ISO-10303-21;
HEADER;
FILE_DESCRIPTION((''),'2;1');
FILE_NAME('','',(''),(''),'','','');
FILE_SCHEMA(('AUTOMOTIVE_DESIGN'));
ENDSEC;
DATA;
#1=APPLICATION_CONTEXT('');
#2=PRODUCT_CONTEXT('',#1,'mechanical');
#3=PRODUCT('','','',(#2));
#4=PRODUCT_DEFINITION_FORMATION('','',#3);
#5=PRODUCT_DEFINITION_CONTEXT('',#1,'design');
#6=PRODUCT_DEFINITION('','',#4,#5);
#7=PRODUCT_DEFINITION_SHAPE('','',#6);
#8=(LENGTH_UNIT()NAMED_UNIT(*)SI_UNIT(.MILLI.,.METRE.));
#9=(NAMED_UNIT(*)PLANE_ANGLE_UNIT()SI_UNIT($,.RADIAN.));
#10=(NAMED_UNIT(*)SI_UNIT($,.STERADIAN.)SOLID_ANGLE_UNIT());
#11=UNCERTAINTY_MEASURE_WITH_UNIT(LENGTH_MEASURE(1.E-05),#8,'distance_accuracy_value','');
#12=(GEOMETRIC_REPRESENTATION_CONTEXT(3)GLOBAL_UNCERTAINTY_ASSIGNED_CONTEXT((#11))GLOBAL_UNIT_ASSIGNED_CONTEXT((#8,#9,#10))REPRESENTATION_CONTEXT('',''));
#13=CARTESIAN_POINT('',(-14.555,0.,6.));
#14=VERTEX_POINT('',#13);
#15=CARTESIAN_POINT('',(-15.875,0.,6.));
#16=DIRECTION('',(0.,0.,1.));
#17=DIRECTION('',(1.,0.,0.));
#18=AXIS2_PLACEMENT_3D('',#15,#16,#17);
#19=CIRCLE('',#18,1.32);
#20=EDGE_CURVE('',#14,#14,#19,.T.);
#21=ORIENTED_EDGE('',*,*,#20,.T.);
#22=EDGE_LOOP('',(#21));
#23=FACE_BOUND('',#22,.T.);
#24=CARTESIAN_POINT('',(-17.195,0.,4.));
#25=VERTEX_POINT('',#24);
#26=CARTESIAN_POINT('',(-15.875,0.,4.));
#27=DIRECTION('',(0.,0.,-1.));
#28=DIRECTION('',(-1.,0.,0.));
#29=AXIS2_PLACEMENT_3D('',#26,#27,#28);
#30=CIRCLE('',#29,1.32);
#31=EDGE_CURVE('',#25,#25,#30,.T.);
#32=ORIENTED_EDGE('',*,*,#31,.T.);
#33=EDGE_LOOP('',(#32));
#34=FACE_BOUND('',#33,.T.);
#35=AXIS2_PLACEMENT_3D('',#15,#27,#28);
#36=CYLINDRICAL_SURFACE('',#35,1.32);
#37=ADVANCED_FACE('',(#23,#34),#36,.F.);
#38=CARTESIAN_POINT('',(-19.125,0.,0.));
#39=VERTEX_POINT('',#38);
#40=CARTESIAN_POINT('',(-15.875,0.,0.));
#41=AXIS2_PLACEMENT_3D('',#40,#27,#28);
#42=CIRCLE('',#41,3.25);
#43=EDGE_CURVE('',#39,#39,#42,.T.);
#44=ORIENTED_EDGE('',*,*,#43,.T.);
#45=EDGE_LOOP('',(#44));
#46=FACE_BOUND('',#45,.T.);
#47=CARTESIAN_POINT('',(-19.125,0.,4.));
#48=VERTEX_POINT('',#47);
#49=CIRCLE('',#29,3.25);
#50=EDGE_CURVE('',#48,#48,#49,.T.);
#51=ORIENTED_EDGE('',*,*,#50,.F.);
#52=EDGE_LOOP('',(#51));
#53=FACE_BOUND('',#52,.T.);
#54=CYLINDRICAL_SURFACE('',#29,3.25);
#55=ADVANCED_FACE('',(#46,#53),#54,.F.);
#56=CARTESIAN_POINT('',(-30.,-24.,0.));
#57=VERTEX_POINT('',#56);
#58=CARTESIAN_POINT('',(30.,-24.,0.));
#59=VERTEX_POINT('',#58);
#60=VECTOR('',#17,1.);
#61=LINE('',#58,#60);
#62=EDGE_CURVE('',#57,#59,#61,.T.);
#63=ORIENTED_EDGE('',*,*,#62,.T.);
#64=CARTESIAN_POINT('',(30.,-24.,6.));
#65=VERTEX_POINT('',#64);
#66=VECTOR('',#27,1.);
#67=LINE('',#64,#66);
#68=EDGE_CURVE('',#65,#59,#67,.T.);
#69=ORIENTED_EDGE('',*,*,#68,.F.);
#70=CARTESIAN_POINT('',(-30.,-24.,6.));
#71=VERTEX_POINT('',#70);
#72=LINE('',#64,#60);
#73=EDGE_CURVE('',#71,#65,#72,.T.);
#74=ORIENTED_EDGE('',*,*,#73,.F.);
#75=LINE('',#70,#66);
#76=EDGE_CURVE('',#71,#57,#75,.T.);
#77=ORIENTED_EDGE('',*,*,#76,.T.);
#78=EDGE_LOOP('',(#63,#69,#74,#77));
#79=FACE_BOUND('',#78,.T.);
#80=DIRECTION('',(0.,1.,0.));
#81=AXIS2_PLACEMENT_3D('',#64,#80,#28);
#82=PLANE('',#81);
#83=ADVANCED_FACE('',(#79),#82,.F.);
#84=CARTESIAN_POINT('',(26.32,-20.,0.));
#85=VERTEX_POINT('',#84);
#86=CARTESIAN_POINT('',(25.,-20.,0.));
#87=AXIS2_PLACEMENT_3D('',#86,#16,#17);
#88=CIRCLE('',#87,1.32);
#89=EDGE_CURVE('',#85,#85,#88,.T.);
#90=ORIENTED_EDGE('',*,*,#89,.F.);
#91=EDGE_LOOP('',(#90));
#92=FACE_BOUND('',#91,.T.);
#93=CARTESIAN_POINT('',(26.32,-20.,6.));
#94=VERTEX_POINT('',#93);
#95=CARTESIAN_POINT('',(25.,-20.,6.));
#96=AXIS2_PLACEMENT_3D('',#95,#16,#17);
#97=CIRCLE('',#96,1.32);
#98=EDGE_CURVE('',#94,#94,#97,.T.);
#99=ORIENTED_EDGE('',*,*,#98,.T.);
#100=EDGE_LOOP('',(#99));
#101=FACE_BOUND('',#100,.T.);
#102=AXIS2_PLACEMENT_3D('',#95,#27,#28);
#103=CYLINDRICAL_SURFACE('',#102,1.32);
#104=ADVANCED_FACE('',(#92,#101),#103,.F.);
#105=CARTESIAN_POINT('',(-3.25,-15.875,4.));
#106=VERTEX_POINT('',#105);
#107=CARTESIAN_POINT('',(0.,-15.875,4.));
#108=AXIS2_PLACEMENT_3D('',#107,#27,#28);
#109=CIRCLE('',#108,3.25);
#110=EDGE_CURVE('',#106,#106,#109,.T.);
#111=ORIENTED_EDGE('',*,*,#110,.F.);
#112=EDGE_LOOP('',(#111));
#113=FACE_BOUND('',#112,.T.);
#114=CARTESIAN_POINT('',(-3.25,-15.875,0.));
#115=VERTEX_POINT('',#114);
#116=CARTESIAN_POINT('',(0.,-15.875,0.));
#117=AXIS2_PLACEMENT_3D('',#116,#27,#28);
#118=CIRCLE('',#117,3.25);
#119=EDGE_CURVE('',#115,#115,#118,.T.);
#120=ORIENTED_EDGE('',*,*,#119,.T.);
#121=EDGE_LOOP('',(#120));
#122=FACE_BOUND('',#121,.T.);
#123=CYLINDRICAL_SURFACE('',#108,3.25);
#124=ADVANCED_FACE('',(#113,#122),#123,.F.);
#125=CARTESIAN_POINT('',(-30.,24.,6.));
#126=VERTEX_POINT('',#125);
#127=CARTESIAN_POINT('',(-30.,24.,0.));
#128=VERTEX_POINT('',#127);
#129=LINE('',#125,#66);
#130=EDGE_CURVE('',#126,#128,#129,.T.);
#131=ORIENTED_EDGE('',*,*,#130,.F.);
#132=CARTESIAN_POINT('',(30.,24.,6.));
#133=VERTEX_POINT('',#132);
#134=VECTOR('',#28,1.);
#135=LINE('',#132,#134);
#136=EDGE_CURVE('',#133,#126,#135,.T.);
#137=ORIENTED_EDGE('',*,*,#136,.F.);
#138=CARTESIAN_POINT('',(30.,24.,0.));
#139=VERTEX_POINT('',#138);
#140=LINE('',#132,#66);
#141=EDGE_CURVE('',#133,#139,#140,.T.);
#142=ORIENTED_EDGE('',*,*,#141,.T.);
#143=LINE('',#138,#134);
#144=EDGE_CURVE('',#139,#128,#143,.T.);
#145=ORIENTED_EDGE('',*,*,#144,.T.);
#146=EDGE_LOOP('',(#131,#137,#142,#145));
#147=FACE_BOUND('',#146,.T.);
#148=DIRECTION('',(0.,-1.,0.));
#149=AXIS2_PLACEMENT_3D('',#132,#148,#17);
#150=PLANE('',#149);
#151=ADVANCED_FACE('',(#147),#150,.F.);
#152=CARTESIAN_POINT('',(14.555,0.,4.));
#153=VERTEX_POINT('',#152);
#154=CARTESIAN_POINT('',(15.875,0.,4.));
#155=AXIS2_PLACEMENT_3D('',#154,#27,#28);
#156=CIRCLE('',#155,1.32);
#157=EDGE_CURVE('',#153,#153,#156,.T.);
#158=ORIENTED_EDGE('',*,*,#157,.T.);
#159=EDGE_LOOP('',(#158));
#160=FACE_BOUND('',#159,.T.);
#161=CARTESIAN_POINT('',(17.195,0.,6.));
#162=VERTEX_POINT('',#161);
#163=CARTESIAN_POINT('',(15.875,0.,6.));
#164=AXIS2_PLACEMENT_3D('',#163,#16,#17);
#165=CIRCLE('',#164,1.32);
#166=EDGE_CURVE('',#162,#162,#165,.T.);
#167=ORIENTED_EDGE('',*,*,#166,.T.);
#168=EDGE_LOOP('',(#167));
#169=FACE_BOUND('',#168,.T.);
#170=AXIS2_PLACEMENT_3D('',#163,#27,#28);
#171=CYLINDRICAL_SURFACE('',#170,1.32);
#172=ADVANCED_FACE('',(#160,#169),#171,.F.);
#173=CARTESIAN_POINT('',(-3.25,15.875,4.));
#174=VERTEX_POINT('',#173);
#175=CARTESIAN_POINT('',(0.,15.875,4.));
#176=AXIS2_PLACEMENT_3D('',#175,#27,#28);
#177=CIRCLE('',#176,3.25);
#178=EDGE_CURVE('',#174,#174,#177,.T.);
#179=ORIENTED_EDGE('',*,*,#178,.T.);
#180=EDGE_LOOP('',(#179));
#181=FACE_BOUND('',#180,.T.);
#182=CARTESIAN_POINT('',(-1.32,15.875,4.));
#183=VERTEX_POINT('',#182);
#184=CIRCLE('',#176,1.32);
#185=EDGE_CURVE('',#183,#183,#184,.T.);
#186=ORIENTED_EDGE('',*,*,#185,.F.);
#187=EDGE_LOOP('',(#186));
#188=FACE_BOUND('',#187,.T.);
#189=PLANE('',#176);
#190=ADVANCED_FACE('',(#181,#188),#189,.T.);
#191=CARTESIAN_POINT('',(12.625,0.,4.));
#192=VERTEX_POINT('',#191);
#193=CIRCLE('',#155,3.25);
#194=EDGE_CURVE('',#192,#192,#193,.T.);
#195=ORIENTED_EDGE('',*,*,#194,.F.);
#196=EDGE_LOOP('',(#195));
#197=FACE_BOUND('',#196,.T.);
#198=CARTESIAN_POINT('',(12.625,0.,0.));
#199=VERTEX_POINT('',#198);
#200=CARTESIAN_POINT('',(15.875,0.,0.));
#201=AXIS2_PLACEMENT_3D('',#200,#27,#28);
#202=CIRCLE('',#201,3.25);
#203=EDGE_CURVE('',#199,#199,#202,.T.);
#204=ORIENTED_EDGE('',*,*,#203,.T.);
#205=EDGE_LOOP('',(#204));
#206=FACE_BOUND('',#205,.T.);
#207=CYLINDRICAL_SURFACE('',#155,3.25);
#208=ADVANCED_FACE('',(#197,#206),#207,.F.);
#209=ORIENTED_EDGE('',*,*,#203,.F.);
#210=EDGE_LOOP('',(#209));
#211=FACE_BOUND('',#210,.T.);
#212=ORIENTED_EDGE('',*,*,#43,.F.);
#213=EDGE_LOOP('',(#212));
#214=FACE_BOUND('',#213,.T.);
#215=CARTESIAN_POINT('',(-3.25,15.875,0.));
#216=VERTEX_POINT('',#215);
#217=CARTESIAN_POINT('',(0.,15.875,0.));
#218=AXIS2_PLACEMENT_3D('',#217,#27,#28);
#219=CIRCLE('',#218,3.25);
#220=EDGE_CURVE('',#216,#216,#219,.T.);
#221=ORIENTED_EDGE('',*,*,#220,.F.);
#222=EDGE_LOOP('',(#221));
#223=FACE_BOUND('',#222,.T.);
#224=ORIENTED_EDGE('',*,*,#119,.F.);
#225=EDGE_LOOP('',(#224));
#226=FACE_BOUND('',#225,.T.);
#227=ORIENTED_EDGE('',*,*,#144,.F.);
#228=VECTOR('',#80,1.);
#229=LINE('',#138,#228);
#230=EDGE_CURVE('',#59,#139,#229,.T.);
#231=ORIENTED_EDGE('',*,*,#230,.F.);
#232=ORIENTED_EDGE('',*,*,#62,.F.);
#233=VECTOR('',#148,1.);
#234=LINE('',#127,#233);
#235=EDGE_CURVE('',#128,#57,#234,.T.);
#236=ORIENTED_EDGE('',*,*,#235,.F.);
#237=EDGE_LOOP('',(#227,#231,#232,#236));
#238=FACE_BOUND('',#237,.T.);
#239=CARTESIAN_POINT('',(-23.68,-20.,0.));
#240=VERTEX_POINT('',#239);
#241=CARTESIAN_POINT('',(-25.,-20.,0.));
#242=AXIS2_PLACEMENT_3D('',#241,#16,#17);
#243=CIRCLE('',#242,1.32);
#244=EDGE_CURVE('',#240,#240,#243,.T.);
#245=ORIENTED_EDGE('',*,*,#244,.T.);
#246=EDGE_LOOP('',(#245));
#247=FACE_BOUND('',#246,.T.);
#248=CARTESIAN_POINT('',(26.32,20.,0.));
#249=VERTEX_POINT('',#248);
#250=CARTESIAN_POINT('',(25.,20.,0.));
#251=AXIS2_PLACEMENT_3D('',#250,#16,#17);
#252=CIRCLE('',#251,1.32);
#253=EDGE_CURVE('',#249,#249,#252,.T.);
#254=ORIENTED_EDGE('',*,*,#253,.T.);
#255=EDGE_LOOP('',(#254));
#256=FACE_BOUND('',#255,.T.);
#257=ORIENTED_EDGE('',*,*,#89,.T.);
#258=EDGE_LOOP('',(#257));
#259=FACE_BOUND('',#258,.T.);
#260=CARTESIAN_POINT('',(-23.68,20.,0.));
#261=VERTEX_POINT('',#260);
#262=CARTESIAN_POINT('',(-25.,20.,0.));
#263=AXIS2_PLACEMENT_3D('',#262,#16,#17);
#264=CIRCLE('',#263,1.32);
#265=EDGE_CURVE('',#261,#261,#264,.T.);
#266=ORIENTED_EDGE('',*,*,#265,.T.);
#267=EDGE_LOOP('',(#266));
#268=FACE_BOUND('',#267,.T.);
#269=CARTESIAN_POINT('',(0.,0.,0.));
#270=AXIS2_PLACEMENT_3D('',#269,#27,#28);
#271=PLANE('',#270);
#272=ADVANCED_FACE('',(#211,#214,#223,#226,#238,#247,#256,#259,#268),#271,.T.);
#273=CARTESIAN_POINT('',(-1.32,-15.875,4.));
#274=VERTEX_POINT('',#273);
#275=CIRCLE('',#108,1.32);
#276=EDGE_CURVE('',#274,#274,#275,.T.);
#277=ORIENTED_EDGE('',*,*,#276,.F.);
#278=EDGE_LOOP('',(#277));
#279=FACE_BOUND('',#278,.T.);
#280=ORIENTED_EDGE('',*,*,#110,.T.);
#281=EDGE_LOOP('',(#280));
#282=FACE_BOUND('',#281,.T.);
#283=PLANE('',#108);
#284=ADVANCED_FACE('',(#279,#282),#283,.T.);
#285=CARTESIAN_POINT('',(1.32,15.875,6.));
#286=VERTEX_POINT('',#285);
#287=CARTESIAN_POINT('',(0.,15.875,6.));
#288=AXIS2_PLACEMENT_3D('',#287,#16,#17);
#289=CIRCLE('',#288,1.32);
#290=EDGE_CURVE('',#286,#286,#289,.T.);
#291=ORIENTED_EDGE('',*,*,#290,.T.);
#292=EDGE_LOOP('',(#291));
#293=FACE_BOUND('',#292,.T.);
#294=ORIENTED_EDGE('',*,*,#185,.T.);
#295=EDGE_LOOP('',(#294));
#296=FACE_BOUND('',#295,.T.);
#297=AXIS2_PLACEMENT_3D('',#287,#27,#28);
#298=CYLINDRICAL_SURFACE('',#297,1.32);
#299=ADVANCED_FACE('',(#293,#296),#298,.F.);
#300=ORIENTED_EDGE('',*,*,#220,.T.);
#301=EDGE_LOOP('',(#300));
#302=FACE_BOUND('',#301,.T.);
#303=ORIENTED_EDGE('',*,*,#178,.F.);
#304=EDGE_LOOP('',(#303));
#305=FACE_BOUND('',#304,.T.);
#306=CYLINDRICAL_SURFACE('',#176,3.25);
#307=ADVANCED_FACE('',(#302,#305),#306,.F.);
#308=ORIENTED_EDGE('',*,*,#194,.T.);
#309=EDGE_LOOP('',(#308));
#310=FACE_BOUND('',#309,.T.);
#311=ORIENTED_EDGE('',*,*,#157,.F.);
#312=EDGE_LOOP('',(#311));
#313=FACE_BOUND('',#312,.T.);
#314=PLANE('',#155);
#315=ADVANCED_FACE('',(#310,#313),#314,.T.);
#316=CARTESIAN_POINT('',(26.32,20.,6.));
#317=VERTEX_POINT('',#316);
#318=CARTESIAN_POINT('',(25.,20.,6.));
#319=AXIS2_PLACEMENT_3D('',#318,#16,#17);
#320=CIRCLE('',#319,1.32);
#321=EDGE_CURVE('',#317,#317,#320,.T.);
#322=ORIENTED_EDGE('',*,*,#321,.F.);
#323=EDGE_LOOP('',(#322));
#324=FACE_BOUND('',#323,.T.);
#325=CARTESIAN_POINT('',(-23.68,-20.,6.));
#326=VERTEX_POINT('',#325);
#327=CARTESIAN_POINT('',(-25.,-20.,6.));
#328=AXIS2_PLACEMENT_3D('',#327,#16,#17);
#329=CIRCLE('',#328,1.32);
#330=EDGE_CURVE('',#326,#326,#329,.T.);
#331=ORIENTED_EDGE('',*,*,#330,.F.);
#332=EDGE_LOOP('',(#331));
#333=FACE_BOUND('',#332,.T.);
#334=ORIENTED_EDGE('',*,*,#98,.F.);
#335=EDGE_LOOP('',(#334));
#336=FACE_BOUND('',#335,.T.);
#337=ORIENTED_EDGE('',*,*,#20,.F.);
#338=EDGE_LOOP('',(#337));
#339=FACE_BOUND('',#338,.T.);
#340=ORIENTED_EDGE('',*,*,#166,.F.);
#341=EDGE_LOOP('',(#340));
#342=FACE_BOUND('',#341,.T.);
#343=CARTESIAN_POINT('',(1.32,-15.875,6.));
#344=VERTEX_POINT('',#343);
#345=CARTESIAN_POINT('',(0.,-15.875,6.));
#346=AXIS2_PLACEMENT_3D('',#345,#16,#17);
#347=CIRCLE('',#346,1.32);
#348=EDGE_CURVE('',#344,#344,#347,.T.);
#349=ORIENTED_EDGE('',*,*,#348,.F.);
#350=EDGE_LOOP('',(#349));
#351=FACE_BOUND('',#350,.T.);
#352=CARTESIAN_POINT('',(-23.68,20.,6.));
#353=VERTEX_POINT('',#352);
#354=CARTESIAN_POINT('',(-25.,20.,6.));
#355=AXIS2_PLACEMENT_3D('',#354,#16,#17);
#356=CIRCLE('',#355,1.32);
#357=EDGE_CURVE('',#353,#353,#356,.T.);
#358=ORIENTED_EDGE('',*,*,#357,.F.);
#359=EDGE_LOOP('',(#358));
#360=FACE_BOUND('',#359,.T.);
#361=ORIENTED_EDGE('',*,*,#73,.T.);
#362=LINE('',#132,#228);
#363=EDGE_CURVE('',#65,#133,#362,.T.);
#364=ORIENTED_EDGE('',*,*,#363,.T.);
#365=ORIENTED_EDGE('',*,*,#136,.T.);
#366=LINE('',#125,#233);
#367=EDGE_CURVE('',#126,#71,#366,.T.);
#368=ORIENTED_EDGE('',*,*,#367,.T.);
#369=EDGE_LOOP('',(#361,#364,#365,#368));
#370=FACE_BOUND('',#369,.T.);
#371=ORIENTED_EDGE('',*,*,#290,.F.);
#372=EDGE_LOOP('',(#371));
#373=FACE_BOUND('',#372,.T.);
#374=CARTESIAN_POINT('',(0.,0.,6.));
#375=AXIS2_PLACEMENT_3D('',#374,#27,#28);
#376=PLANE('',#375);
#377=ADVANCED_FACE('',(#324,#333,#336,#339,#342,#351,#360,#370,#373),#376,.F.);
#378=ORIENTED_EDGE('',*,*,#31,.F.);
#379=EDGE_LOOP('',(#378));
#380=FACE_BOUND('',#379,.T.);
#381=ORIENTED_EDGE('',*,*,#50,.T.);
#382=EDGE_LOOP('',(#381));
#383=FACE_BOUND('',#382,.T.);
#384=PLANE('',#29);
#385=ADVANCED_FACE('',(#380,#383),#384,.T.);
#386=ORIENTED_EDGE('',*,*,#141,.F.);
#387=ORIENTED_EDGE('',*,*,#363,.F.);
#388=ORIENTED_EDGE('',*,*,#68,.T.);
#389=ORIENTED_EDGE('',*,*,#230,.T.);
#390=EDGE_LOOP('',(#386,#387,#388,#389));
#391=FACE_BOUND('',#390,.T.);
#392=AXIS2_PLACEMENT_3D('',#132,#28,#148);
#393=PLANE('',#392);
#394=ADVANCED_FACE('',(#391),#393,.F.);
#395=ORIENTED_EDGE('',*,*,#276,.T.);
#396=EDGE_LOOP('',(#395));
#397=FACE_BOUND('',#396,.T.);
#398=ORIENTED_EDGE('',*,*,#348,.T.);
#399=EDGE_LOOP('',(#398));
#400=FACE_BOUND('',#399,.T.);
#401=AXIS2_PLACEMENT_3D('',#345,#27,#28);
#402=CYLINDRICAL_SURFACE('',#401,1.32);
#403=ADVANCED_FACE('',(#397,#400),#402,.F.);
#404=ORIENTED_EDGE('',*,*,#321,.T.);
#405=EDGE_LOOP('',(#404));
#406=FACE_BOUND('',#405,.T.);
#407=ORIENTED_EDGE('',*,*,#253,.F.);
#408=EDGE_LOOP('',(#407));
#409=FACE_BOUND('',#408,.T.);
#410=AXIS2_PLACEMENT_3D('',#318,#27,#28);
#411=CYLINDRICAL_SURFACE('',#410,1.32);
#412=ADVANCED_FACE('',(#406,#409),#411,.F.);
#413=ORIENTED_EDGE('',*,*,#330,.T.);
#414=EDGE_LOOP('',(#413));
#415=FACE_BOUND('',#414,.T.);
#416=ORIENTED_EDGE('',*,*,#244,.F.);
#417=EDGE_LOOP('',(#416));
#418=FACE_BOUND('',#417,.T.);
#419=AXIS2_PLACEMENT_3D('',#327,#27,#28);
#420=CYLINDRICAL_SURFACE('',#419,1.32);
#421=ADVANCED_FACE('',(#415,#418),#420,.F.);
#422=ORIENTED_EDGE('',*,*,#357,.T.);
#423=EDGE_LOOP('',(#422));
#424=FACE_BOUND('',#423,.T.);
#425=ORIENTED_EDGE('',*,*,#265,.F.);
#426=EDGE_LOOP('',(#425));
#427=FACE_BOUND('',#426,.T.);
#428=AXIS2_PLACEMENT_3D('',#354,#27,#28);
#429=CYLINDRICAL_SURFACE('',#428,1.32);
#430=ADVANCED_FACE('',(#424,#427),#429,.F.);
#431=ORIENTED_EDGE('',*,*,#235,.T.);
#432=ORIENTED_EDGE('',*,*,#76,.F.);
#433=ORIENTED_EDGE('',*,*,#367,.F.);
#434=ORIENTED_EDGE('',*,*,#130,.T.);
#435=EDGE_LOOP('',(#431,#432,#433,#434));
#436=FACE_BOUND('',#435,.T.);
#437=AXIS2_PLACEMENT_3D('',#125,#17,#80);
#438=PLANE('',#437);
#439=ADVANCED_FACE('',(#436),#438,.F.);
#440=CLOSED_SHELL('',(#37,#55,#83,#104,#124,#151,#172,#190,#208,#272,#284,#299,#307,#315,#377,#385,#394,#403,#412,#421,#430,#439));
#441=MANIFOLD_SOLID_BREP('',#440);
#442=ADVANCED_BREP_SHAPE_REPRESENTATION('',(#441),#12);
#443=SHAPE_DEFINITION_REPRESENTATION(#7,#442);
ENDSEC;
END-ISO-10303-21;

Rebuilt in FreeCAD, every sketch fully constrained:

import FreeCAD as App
import Part
import Sketcher
from FreeCAD import Vector
Q = App.Units.Quantity

doc = App.newDocument("Part")
params = doc.addObject("Spreadsheet::Sheet", "Params")
for row, (alias, value) in enumerate([
    ("sketch1_diameter", "2.64 mm"),
    ("sketch1_width", "60 mm"),
    ("sketch1_height", "48 mm"),
    ("pad1_length", "6 mm"),
    ("sketch2_diameter", "6.5 mm"),
    ("pocket1_length", "4 mm"),
], start=1):
    params.set(f"A{row}", alias)
    params.set(f"B{row}", "=" + value)
    params.setAlias(f"B{row}", alias)

body = doc.addObject("PartDesign::Body", "Body")

# Sketch on XY plane
sketch1 = body.newObject("Sketcher::SketchObject", "Sketch")
sketch1.AttachmentSupport = (doc.getObject("XY_Plane"), [""])
sketch1.MapMode = "FlatFace"
sketch1.addGeometry(Part.LineSegment(Vector(-30, 24, 0), Vector(-30, -24, 0)), False)
sketch1.addGeometry(Part.LineSegment(Vector(-30, -24, 0), Vector(30, -24, 0)), False)
sketch1.addGeometry(Part.LineSegment(Vector(30, -24, 0), Vector(30, 24, 0)), False)
sketch1.addGeometry(Part.LineSegment(Vector(30, 24, 0), Vector(-30, 24, 0)), False)
sketch1.addGeometry(Part.Circle(Vector(-25, -20, 0), Vector(0, 0, 1), 1.3), False)
sketch1.addGeometry(Part.Circle(Vector(0, -15.9, 0), Vector(0, 0, 1), 1.3), False)
sketch1.addGeometry(Part.Circle(Vector(25, -20, 0), Vector(0, 0, 1), 1.3), False)
sketch1.addGeometry(Part.Circle(Vector(-15.9, 0, 0), Vector(0, 0, 1), 1.3), False)
sketch1.addGeometry(Part.Circle(Vector(-25, 20, 0), Vector(0, 0, 1), 1.3), False)
sketch1.addGeometry(Part.Circle(Vector(15.9, 0, 0), Vector(0, 0, 1), 1.3), False)
sketch1.addGeometry(Part.Circle(Vector(0, 15.9, 0), Vector(0, 0, 1), 1.3), False)
sketch1.addGeometry(Part.Circle(Vector(25, 20, 0), Vector(0, 0, 1), 1.3), False)
sketch1.addConstraint(Sketcher.Constraint("Coincident", 0, 2, 1, 1))
sketch1.addConstraint(Sketcher.Constraint("Coincident", 1, 2, 2, 1))
sketch1.addConstraint(Sketcher.Constraint("Coincident", 2, 2, 3, 1))
sketch1.addConstraint(Sketcher.Constraint("Coincident", 3, 2, 0, 1))
sketch1.addConstraint(Sketcher.Constraint("Vertical", 0))
sketch1.addConstraint(Sketcher.Constraint("Horizontal", 1))
sketch1.addConstraint(Sketcher.Constraint("Vertical", 2))
sketch1.addConstraint(Sketcher.Constraint("Horizontal", 3))
sketch1.addConstraint(Sketcher.Constraint("Equal", 4, 5))
sketch1.addConstraint(Sketcher.Constraint("Equal", 5, 6))
sketch1.addConstraint(Sketcher.Constraint("Equal", 6, 7))
sketch1.addConstraint(Sketcher.Constraint("Equal", 7, 8))
sketch1.addConstraint(Sketcher.Constraint("Equal", 8, 9))
sketch1.addConstraint(Sketcher.Constraint("Equal", 9, 10))
sketch1.addConstraint(Sketcher.Constraint("Equal", 10, 11))
sketch1.addConstraint(Sketcher.Constraint("Symmetric", 6, 3, 8, 3, -1, 1))
sketch1.addConstraint(Sketcher.Constraint("Symmetric", 7, 3, 9, 3, -1, 1))
sketch1.addConstraint(Sketcher.Constraint("Symmetric", 5, 3, 10, 3, -1, 1))
sketch1.addConstraint(Sketcher.Constraint("Symmetric", 4, 3, 11, 3, -1, 1))
sketch1.addConstraint(Sketcher.Constraint("Symmetric", 0, 2, 2, 2, -1, 1))
sketch1.addConstraint(Sketcher.Constraint("Symmetric", 4, 3, 6, 3, -2))
sketch1.addConstraint(Sketcher.Constraint("PointOnObject", 5, 3, -2))
sketch1.addConstraint(Sketcher.Constraint("PointOnObject", 7, 3, -1))
sketch1.addConstraint(Sketcher.Constraint("Diameter", 4, Q("2.64 mm")))
sketch1.addConstraint(Sketcher.Constraint("DistanceX", 1, 1, 1, 2, Q("60 mm")))
sketch1.addConstraint(Sketcher.Constraint("DistanceY", 0, 2, 0, 1, Q("48 mm")))
sketch1.addConstraint(Sketcher.Constraint("DistanceX", 4, 3, -1, 1, Q("25 mm")))
sketch1.addConstraint(Sketcher.Constraint("DistanceY", 4, 3, -1, 1, Q("20 mm")))
sketch1.addConstraint(Sketcher.Constraint("DistanceX", 7, 3, 9, 3, Q("31.75 mm")))
sketch1.addConstraint(Sketcher.Constraint("DistanceY", 5, 3, 10, 3, Q("31.75 mm")))
sketch1.setExpression("Constraints[23]", "Params.sketch1_diameter")
sketch1.setExpression("Constraints[24]", "Params.sketch1_width")
sketch1.setExpression("Constraints[25]", "Params.sketch1_height")
pad1 = body.newObject("PartDesign::Pad", "Pad")
pad1.Profile = sketch1
pad1.setExpression("Length", "Params.pad1_length")

# Sketch on XY plane
sketch2 = body.newObject("Sketcher::SketchObject", "Sketch001")
sketch2.AttachmentSupport = (doc.getObject("XY_Plane"), [""])
sketch2.MapMode = "FlatFace"
sketch2.addGeometry(Part.Circle(Vector(0, 15.9, 0), Vector(0, 0, 1), 3.2), False)
sketch2.addGeometry(Part.Circle(Vector(-15.9, 0, 0), Vector(0, 0, 1), 3.2), False)
sketch2.addGeometry(Part.Circle(Vector(0, -15.9, 0), Vector(0, 0, 1), 3.2), False)
sketch2.addGeometry(Part.Circle(Vector(15.9, 0, 0), Vector(0, 0, 1), 3.2), False)
sketch2.addConstraint(Sketcher.Constraint("Equal", 0, 1))
sketch2.addConstraint(Sketcher.Constraint("Equal", 1, 2))
sketch2.addConstraint(Sketcher.Constraint("Equal", 2, 3))
sketch2.addConstraint(Sketcher.Constraint("Symmetric", 0, 3, 2, 3, -1, 1))
sketch2.addConstraint(Sketcher.Constraint("Symmetric", 1, 3, 3, 3, -1, 1))
sketch2.addConstraint(Sketcher.Constraint("PointOnObject", 0, 3, -2))
sketch2.addConstraint(Sketcher.Constraint("PointOnObject", 1, 3, -1))
sketch2.addConstraint(Sketcher.Constraint("Diameter", 0, Q("6.5 mm")))
sketch2.addConstraint(Sketcher.Constraint("DistanceY", 2, 3, 0, 3, Q("31.75 mm")))
sketch2.addConstraint(Sketcher.Constraint("DistanceX", 1, 3, 3, 3, Q("31.75 mm")))
sketch2.setExpression("Constraints[7]", "Params.sketch2_diameter")
pocket1 = body.newObject("PartDesign::Pocket", "Pocket")
pocket1.Profile = sketch2
pocket1.setExpression("Length", "Params.pocket1_length")
pocket1.Reversed = True

doc.recompute()
